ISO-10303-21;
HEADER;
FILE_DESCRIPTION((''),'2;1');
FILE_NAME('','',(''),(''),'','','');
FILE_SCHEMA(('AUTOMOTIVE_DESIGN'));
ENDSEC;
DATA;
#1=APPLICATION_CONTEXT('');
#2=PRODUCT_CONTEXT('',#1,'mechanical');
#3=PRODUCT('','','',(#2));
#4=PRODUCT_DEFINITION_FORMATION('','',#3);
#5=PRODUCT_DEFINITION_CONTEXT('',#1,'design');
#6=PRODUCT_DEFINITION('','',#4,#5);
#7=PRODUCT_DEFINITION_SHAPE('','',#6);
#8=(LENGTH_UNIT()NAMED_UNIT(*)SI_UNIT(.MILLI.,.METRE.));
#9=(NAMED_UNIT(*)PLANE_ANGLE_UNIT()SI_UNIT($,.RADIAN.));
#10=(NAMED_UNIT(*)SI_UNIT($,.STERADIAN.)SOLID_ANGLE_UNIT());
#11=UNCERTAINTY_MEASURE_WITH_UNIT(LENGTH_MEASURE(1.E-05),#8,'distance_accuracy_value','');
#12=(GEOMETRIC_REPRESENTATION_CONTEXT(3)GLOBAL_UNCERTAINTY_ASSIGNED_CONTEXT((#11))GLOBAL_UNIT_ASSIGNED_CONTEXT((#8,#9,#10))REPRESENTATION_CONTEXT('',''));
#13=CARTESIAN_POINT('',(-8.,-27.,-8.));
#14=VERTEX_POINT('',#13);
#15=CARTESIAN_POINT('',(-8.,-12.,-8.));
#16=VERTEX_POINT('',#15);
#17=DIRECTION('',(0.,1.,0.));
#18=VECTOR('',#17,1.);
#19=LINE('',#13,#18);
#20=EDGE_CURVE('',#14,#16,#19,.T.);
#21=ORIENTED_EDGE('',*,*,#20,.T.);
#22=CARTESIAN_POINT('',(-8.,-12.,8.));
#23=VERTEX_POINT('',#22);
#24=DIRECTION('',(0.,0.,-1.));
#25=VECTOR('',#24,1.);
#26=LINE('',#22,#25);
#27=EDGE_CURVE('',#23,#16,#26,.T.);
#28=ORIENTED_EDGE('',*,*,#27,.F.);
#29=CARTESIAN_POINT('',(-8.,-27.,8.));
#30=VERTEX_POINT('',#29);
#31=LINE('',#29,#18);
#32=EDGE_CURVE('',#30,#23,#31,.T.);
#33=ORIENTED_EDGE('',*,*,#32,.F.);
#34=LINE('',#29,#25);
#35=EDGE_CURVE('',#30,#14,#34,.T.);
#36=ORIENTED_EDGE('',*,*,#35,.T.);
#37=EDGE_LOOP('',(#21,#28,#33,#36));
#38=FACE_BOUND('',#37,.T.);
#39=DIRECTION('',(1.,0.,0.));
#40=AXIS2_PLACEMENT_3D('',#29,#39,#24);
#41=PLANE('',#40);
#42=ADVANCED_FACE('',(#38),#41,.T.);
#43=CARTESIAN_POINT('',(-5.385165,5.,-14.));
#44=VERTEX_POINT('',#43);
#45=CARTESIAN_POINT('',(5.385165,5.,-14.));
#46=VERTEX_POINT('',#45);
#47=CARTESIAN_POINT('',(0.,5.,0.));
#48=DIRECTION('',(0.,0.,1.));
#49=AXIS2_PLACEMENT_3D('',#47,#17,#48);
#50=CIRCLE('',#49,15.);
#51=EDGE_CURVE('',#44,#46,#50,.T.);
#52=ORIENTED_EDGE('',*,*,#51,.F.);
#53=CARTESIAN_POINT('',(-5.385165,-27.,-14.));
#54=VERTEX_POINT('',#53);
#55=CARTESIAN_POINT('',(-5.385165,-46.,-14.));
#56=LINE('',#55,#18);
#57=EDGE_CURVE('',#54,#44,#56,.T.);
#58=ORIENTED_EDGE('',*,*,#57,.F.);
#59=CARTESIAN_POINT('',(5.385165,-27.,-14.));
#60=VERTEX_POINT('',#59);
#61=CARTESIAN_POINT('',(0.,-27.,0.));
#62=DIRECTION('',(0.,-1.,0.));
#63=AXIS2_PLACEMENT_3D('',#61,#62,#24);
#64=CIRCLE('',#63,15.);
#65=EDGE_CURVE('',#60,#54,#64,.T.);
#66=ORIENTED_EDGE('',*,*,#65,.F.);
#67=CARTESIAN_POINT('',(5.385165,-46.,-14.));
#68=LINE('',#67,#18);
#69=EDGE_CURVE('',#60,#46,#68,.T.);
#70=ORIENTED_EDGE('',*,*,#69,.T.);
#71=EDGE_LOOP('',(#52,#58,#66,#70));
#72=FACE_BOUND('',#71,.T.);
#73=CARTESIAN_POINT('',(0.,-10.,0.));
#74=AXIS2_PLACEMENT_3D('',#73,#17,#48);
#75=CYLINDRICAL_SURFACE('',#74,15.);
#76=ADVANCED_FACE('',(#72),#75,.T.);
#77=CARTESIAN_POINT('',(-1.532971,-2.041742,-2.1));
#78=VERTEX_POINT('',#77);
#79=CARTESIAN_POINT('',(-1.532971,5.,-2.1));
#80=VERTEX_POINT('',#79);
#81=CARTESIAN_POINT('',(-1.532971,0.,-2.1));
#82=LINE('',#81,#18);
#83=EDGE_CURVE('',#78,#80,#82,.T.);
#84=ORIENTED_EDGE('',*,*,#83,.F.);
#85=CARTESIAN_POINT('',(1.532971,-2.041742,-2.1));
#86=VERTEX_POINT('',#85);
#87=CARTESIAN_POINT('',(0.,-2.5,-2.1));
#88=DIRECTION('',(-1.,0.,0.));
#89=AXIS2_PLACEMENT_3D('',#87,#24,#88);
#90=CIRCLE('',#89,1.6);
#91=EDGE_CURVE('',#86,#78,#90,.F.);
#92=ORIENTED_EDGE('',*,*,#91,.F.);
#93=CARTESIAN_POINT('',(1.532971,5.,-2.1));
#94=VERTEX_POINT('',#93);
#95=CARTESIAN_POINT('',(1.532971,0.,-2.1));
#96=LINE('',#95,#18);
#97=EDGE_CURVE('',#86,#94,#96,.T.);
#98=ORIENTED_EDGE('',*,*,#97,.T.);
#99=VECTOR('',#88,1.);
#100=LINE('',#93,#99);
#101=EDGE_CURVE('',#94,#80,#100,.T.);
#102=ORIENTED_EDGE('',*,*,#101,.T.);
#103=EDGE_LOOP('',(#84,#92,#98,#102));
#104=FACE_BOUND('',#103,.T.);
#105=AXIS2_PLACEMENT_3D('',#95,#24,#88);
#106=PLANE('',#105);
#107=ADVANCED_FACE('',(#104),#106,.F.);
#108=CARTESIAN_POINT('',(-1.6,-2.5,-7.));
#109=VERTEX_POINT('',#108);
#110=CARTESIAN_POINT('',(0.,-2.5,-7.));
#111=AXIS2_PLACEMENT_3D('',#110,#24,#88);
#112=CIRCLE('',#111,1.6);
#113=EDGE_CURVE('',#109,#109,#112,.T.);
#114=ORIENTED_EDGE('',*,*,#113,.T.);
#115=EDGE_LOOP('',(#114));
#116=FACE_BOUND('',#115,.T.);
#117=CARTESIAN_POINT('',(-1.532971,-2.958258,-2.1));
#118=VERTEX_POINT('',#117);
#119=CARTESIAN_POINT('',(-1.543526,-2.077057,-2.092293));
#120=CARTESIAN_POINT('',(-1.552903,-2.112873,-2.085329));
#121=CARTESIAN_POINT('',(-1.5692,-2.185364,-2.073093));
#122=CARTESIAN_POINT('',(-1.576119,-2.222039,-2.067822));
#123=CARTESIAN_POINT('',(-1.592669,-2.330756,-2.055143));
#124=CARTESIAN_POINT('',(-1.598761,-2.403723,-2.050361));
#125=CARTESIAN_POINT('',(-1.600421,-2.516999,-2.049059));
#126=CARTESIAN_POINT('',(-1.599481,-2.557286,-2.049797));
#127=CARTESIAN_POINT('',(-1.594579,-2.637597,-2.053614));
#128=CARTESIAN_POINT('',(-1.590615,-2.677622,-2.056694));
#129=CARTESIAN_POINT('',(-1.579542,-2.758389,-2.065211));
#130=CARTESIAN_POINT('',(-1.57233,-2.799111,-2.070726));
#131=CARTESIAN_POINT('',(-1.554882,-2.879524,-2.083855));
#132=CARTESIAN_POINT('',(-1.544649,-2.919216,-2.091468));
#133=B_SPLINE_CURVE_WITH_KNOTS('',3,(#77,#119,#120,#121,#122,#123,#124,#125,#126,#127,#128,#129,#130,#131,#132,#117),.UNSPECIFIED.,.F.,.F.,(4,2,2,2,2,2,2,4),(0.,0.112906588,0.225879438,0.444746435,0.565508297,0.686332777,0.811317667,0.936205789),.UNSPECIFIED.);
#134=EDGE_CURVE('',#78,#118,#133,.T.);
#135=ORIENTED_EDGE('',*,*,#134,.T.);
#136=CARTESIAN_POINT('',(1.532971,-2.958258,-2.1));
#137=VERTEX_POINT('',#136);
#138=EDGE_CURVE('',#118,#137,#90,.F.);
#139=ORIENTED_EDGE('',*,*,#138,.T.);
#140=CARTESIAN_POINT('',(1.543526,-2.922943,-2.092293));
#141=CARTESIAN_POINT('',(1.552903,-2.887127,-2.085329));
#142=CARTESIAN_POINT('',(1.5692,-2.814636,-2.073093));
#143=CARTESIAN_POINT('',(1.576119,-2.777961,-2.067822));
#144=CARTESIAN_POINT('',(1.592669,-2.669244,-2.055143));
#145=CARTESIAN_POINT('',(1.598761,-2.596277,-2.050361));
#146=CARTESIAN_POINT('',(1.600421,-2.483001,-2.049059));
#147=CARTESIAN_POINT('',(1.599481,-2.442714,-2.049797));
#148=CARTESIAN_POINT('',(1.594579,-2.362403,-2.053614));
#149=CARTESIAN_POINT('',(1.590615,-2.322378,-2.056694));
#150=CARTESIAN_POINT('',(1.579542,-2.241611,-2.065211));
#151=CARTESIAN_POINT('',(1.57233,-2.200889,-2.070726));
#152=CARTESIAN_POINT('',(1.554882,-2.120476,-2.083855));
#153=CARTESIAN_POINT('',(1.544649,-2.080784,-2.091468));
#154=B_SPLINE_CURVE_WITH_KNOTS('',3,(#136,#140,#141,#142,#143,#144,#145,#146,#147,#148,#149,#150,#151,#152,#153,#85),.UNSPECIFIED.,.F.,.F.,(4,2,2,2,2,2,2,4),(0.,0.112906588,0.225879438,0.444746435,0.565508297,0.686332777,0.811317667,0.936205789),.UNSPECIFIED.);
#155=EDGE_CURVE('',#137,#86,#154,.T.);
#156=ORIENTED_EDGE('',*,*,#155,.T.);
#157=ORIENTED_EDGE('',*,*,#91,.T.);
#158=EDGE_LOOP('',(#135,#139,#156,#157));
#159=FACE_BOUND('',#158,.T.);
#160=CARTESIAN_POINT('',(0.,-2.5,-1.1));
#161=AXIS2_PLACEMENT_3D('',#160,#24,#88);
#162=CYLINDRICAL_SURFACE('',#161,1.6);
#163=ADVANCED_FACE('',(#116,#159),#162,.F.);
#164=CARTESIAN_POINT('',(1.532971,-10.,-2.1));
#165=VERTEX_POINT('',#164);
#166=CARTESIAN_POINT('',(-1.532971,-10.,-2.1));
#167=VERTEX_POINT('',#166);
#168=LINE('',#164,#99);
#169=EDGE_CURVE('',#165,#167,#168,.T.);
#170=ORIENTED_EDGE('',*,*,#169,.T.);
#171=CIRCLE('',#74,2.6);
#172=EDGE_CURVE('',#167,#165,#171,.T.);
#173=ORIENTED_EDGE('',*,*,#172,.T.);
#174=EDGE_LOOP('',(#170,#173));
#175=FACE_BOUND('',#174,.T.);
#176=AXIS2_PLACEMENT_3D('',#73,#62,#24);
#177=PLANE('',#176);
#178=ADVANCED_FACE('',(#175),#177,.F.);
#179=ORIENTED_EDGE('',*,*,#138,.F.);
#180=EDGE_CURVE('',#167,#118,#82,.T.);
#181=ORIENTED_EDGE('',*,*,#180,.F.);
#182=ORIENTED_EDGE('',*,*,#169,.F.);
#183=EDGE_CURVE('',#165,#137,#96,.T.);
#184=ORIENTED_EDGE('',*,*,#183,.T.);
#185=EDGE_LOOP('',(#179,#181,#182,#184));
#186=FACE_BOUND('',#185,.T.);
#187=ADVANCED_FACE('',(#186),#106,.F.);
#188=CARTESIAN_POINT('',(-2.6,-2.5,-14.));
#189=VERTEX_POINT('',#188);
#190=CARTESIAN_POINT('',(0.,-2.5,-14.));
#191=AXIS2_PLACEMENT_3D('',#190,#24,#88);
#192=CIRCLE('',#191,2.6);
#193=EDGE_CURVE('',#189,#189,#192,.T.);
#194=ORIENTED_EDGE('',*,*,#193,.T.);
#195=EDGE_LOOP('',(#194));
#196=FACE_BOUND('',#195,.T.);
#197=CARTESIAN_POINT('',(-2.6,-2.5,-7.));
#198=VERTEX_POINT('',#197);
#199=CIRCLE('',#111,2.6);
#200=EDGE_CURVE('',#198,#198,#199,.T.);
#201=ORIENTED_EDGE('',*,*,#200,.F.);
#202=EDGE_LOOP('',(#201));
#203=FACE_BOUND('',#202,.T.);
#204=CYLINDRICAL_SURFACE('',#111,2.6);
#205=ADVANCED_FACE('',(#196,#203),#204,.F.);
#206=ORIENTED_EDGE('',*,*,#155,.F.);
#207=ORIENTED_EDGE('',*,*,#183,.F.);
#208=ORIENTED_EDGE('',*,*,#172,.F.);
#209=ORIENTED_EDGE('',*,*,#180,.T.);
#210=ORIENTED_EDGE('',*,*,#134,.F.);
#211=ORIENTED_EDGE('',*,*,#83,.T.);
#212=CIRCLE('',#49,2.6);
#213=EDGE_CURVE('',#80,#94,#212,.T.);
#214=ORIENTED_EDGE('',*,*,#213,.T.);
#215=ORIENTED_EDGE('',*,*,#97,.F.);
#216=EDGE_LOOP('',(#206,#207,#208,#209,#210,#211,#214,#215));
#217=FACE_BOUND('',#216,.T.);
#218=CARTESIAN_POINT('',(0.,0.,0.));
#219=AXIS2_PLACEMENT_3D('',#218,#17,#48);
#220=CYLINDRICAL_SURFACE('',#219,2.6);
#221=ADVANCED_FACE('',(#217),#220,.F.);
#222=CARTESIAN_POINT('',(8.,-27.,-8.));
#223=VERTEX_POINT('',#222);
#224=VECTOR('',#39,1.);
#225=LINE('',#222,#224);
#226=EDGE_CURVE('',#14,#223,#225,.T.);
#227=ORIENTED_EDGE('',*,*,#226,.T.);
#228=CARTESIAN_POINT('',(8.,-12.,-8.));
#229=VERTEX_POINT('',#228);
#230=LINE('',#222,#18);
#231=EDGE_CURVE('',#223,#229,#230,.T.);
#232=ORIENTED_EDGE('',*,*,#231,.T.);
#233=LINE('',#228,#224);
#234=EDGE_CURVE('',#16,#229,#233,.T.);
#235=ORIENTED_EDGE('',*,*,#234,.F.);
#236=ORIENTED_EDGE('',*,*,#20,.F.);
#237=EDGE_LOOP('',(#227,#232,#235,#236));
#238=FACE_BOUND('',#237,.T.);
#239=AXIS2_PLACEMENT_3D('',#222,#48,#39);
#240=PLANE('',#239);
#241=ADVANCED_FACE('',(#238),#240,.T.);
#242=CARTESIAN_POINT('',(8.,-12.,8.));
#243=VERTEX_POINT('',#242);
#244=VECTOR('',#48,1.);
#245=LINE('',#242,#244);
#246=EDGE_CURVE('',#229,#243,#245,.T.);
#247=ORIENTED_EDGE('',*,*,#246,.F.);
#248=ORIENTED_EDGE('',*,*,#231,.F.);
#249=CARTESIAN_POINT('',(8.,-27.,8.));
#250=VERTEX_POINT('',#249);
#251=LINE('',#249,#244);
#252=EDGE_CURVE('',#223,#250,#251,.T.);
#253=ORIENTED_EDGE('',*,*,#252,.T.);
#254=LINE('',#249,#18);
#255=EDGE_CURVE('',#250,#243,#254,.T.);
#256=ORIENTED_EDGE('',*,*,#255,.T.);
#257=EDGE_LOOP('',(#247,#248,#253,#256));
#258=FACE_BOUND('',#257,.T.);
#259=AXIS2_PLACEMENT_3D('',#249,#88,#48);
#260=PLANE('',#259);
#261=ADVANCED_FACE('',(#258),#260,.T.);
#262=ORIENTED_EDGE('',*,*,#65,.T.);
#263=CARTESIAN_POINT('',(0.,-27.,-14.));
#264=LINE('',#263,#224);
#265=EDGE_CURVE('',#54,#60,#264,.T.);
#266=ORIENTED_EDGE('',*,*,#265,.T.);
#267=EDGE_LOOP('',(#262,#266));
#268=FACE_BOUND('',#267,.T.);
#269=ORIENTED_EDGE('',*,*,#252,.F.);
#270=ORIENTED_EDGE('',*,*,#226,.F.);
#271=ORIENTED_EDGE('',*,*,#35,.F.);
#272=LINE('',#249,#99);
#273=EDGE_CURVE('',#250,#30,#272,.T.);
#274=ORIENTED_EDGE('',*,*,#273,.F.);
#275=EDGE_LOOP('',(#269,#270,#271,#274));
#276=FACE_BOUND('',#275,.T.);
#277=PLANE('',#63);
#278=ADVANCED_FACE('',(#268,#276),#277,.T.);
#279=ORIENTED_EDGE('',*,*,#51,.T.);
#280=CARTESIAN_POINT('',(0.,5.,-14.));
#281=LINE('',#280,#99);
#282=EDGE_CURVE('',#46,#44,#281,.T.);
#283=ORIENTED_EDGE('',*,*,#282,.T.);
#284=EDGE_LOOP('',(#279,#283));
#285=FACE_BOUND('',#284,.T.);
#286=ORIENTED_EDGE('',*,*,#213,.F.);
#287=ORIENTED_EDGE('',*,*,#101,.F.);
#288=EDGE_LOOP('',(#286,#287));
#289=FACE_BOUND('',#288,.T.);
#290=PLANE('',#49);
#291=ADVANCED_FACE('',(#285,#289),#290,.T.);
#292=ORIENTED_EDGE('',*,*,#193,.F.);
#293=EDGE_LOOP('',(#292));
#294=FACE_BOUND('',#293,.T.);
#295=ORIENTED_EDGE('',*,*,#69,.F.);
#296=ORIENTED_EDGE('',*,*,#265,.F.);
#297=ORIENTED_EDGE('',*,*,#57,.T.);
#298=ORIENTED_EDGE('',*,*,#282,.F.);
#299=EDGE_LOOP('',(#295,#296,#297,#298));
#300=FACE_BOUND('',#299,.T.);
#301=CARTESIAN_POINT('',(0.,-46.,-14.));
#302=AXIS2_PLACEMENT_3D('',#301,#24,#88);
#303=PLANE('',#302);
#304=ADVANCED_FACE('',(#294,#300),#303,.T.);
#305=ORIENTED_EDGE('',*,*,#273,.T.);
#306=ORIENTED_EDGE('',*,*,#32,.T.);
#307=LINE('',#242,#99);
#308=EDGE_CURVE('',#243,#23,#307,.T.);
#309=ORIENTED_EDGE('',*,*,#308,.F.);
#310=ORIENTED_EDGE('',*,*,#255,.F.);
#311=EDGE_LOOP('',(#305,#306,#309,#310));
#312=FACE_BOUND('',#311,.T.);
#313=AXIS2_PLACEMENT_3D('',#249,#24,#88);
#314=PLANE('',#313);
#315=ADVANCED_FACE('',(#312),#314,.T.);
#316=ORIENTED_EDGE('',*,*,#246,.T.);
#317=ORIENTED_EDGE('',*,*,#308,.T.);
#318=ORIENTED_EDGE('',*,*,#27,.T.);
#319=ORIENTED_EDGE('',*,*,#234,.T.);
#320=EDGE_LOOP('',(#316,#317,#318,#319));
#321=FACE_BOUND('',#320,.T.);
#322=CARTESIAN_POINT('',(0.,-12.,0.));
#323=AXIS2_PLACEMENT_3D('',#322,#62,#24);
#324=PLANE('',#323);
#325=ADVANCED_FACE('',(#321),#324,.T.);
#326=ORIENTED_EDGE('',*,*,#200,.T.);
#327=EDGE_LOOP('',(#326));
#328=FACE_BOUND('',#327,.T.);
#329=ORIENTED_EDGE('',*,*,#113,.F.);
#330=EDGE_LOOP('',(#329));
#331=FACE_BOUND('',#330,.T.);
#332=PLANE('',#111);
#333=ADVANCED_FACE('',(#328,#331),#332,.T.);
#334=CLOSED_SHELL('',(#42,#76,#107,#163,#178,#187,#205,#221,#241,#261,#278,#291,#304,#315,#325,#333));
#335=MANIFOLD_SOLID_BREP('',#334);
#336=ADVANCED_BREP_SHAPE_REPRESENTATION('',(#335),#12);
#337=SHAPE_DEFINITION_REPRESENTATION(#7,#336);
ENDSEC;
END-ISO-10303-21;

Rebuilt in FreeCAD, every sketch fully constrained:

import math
import FreeCAD as App
import Part
import Sketcher
from FreeCAD import Vector

doc = App.newDocument("Part")
body = doc.addObject("PartDesign::Body", "Body")

sketch1 = doc.addObject("Sketcher::SketchObject", "Sketch")
body.addObject(sketch1)
sketch1.AttachmentSupport = (doc.XZ_Plane, [""])
sketch1.MapMode = "FlatFace"
sketch1.addGeometry([
    Part.Circle(Vector(0, 0, 0), Vector(0, 0, 1), 6),
    Part.ArcOfCircle(Part.Circle(Vector(0, 0, 0), Vector(0, 0, 1), 2.6), math.radians(-54), math.radians(234)),
    Part.LineSegment(Vector(-1.5, -2.1, 0), Vector(1.5, -2.1, 0)),
], False)
sketch1.addConstraint([
    Sketcher.Constraint("Coincident", 1, 1, 2, 2),
    Sketcher.Constraint("Coincident", 2, 1, 1, 2),
    Sketcher.Constraint("Horizontal", 2),
    Sketcher.Constraint("Coincident", 0, 3, -1, 1),
    Sketcher.Constraint("Coincident", 1, 3, -1, 1),
    Sketcher.Constraint("Diameter", 0, 12.0),
    Sketcher.Constraint("Radius", 1, 2.65),
    Sketcher.Constraint("DistanceY", 1, 1, -1, 1, 2.15),
])
pad1 = doc.addObject("PartDesign::Pad", "Pad")
body.addObject(pad1)
pad1.Profile = sketch1
pad1.Length = 5
pad1.Reversed = True

sketch2 = doc.addObject("Sketcher::SketchObject", "Sketch001")
body.addObject(sketch2)
sketch2.AttachmentSupport = (doc.XZ_Plane, [""])
sketch2.MapMode = "FlatFace"
sketch2.addGeometry([
    Part.LineSegment(Vector(1.5, -2.1, 0), Vector(-1.5, -2.1, 0)),
    Part.ArcOfCircle(Part.Circle(Vector(0, 0, 0), Vector(0, 0, 1), 2.6), math.radians(-54), math.radians(234)),
    Part.LineSegment(Vector(-1.5, -2.1, 0), Vector(1.5, -2.1, 0)),
    Part.ArcOfCircle(Part.Circle(Vector(0, 0, 0), Vector(0, 0, 1), 2.6), math.radians(-54), math.radians(234)),
], False)
sketch2.addConstraint([
    Sketcher.Constraint("Coincident", 0, 1, 1, 1),
    Sketcher.Constraint("Coincident", 1, 2, 0, 2),
    Sketcher.Constraint("Coincident", 2, 1, 3, 2),
    Sketcher.Constraint("Coincident", 3, 1, 2, 2),
    Sketcher.Constraint("Horizontal", 0),
    Sketcher.Constraint("Horizontal", 2),
    Sketcher.Constraint("Coincident", 1, 3, -1, 1),
    Sketcher.Constraint("Coincident", 3, 3, -1, 1),
    Sketcher.Constraint("Radius", 1, 2.65),
    Sketcher.Constraint("Radius", 3, 2.58),
    Sketcher.Constraint("DistanceY", 0, 1, -1, 1, 2.15),
    Sketcher.Constraint("DistanceY", 2, 1, -1, 1, 2.08),
])
pad2 = doc.addObject("PartDesign::Pad", "Pad001")
body.addObject(pad2)
pad2.Profile = sketch2
pad2.Length = 5
pad2.Reversed = True

sketch3 = doc.addObject("Sketcher::SketchObject", "Sketch002")
body.addObject(sketch3)
sketch3.AttachmentSupport = (doc.XZ_Plane, [""])
sketch3.MapMode = "FlatFace"
sketch3.AttachmentOffset = App.Placement(Vector(0, 0, -5), App.Rotation())
sketch3.addGeometry([
    Part.LineSegment(Vector(1.5, -2.1, 0), Vector(-1.5, -2.1, 0)),
    Part.ArcOfCircle(Part.Circle(Vector(0, 0, 0), Vector(0, 0, 1), 2.6), math.radians(-54), math.radians(234)),
], False)
sketch3.addConstraint([
    Sketcher.Constraint("Coincident", 0, 1, 1, 1),
    Sketcher.Constraint("Coincident", 1, 2, 0, 2),
    Sketcher.Constraint("Horizontal", 0),
    Sketcher.Constraint("Coincident", 1, 3, -1, 1),
    Sketcher.Constraint("Radius", 1, 2.6),
    Sketcher.Constraint("DistanceY", 0, 1, -1, 1, 2.1),
])
pocket1 = doc.addObject("PartDesign::Pocket", "Pocket")
body.addObject(pocket1)
pocket1.Profile = sketch3
pocket1.Length = 5
pocket1.Reversed = True

sketch4 = doc.addObject("Sketcher::SketchObject", "Sketch003")
body.addObject(sketch4)
sketch4.AttachmentSupport = (doc.XZ_Plane, [""])
sketch4.MapMode = "FlatFace"
sketch4.AttachmentOffset = App.Placement(Vector(0, 0, -5), App.Rotation())
sketch4.addGeometry([
    Part.Circle(Vector(0, 0, 0), Vector(0, 0, 1), 15),
    Part.LineSegment(Vector(-1.5, -2.1, 0), Vector(1.5, -2.1, 0)),
    Part.ArcOfCircle(Part.Circle(Vector(0, 0, 0), Vector(0, 0, 1), 2.6), math.radians(-54), math.radians(234)),
], False)
sketch4.addConstraint([
    Sketcher.Constraint("Coincident", 1, 1, 2, 2),
    Sketcher.Constraint("Coincident", 2, 1, 1, 2),
    Sketcher.Constraint("Horizontal", 1),
    Sketcher.Constraint("Coincident", 0, 3, -1, 1),
    Sketcher.Constraint("Coincident", 2, 3, -1, 1),
    Sketcher.Constraint("Diameter", 0, 30.0),
    Sketcher.Constraint("Radius", 2, 2.6),
    Sketcher.Constraint("DistanceY", 1, 1, -1, 1, 2.1),
])
pad3 = doc.addObject("PartDesign::Pad", "Pad002")
body.addObject(pad3)
pad3.Profile = sketch4
pad3.Length = 15

sketch5 = doc.addObject("Sketcher::SketchObject", "Sketch004")
body.addObject(sketch5)
sketch5.AttachmentSupport = (doc.XZ_Plane, [""])
sketch5.MapMode = "FlatFace"
sketch5.AttachmentOffset = App.Placement(Vector(0, 0, 10), App.Rotation())
sketch5.addGeometry(Part.Circle(Vector(0, 0, 0), Vector(0, 0, 1), 15), False)
sketch5.addConstraint([
    Sketcher.Constraint("Coincident", 0, 3, -1, 1),
    Sketcher.Constraint("Diameter", 0, 30.0),
])
pad4 = doc.addObject("PartDesign::Pad", "Pad003")
body.addObject(pad4)
pad4.Profile = sketch5
pad4.Length = 2

sketch6 = doc.addObject("Sketcher::SketchObject", "Sketch005")
body.addObject(sketch6)
sketch6.AttachmentSupport = (doc.XZ_Plane, [""])
sketch6.MapMode = "FlatFace"
sketch6.AttachmentOffset = App.Placement(Vector(0, 0, 12), App.Rotation())
sketch6.addGeometry([
    Part.Circle(Vector(0, 0, 0), Vector(0, 0, 1), 15),
    Part.LineSegment(Vector(8, -8, 0), Vector(-8, -8, 0)),
    Part.LineSegment(Vector(-8, -8, 0), Vector(-8, 8, 0)),
    Part.LineSegment(Vector(-8, 8, 0), Vector(8, 8, 0)),
    Part.LineSegment(Vector(8, 8, 0), Vector(8, -8, 0)),
], False)
sketch6.addConstraint([
    Sketcher.Constraint("Coincident", 1, 2, 2, 1),
    Sketcher.Constraint("Coincident", 2, 2, 3, 1),
    Sketcher.Constraint("Coincident", 3, 2, 4, 1),
    Sketcher.Constraint("Coincident", 4, 2, 1, 1),
    Sketcher.Constraint("Horizontal", 1),
    Sketcher.Constraint("Vertical", 2),
    Sketcher.Constraint("Horizontal", 3),
    Sketcher.Constraint("Vertical", 4),
    Sketcher.Constraint("Coincident", 0, 3, -1, 1),
    Sketcher.Constraint("Symmetric", 1, 2, 3, 2, -1, 1),
    Sketcher.Constraint("Equal", 3, 2),
    Sketcher.Constraint("Diameter", 0, 30.0),
    Sketcher.Constraint("DistanceX", 1, 2, 1, 1, 16.0),
])
pad5 = doc.addObject("PartDesign::Pad", "Pad004")
body.addObject(pad5)
pad5.Profile = sketch6
pad5.Length = 15

sketch7 = doc.addObject("Sketcher::SketchObject", "Sketch006")
body.addObject(sketch7)
sketch7.AttachmentSupport = (doc.XZ_Plane, [""])
sketch7.MapMode = "FlatFace"
sketch7.AttachmentOffset = App.Placement(Vector(0, 0, -5), App.Rotation())
sketch7.addGeometry([
    Part.LineSegment(Vector(-5, -14, 0), Vector(5, -14, 0)),
    Part.ArcOfCircle(Part.Circle(Vector(0, 0, 0), Vector(0, 0, 1), 15), math.radians(-90), math.radians(-69)),
    Part.ArcOfCircle(Part.Circle(Vector(0, 0, 0), Vector(0, 0, 1), 15), math.radians(-111), math.radians(-90)),
], False)
sketch7.addConstraint([
    Sketcher.Constraint("Coincident", 0, 2, 1, 2),
    Sketcher.Constraint("Tangent", 1, 1, 2, 2),
    Sketcher.Constraint("Coincident", 2, 1, 0, 1),
    Sketcher.Constraint("Horizontal", 0),
    Sketcher.Constraint("Coincident", 1, 3, -1, 1),
    Sketcher.Constraint("Equal", 1, 2),
    Sketcher.Constraint("PointOnObject", 1, 1, -2),
    Sketcher.Constraint("Radius", 1, 15.0),
    Sketcher.Constraint("DistanceY", 0, 2, -1, 1, 14.0),
])
pocket2 = doc.addObject("PartDesign::Pocket", "Pocket001")
body.addObject(pocket2)
pocket2.Profile = sketch7
pocket2.Length = 51
pocket2.Reversed = True

sketch8 = doc.addObject("Sketcher::SketchObject", "Sketch007")
body.addObject(sketch8)
sketch8.AttachmentSupport = (doc.XY_Plane, [""])
sketch8.MapMode = "FlatFace"
sketch8.AttachmentOffset = App.Placement(Vector(0, 0, -2.1), App.Rotation())
sketch8.addGeometry([
    Part.ArcOfCircle(Part.Circle(Vector(0, -2.5, 0), Vector(0, 0, 1), 1.6), math.radians(-163), math.radians(-17)),
    Part.ArcOfCircle(Part.Circle(Vector(0, -2.5, 0), Vector(0, 0, 1), 1.6), math.radians(-16.64), math.radians(0)),
    Part.ArcOfCircle(Part.Circle(Vector(0, -2.5, 0), Vector(0, 0, 1), 1.6), math.radians(0), math.radians(16.64)),
    Part.ArcOfCircle(Part.Circle(Vector(0, -2.5, 0), Vector(0, 0, 1), 1.6), math.radians(17), math.radians(163)),
    Part.ArcOfCircle(Part.Circle(Vector(0, -2.5, 0), Vector(0, 0, 1), 1.6), math.radians(163), math.radians(197)),
], False)
sketch8.addConstraint([
    Sketcher.Constraint("Tangent", 0, 2, 1, 1),
    Sketcher.Constraint("Tangent", 1, 2, 2, 1),
    Sketcher.Constraint("Tangent", 2, 2, 3, 1),
    Sketcher.Constraint("Tangent", 3, 2, 4, 1),
    Sketcher.Constraint("Tangent", 4, 2, 0, 1),
    Sketcher.Constraint("Coincident", 2, 3, 0, 3),
    Sketcher.Constraint("Symmetric", 2, 2, 3, 2, -2),
    Sketcher.Constraint("Horizontal", 4, 3, 1, 2),
    Sketcher.Constraint("Horizontal", 0, 2, 4, 2),
    Sketcher.Constraint("Vertical", 0, 2, 2, 2),
    Sketcher.Constraint("Radius", 0, 1.6),
    Sketcher.Constraint("DistanceY", 0, 3, -1, 1, 2.5),
    Sketcher.Constraint("DistanceX", -1, 1, 0, 2, 1.532971),
])
pocket3 = doc.addObject("PartDesign::Pocket", "Pocket002")
body.addObject(pocket3)
pocket3.Profile = sketch8
pocket3.Type = "TwoLengths"
pocket3.Length = 1
pocket3.Length2 = 51
pocket3.Reversed = True

sketch9 = doc.addObject("Sketcher::SketchObject", "Sketch008")
body.addObject(sketch9)
sketch9.AttachmentSupport = (doc.XY_Plane, [""])
sketch9.MapMode = "FlatFace"
sketch9.AttachmentOffset = App.Placement(Vector(0, 0, -14), App.Rotation())
sketch9.addGeometry(Part.Circle(Vector(0, -2.5, 0), Vector(0, 0, 1), 2.6), False)
sketch9.addConstraint([
    Sketcher.Constraint("PointOnObject", 0, 3, -2),
    Sketcher.Constraint("Diameter", 0, 5.2),
    Sketcher.Constraint("DistanceY", 0, 3, -1, 1, 2.5),
])
pocket4 = doc.addObject("PartDesign::Pocket", "Pocket003")
body.addObject(pocket4)
pocket4.Profile = sketch9
pocket4.Length = 7
pocket4.Reversed = True

doc.recompute()
